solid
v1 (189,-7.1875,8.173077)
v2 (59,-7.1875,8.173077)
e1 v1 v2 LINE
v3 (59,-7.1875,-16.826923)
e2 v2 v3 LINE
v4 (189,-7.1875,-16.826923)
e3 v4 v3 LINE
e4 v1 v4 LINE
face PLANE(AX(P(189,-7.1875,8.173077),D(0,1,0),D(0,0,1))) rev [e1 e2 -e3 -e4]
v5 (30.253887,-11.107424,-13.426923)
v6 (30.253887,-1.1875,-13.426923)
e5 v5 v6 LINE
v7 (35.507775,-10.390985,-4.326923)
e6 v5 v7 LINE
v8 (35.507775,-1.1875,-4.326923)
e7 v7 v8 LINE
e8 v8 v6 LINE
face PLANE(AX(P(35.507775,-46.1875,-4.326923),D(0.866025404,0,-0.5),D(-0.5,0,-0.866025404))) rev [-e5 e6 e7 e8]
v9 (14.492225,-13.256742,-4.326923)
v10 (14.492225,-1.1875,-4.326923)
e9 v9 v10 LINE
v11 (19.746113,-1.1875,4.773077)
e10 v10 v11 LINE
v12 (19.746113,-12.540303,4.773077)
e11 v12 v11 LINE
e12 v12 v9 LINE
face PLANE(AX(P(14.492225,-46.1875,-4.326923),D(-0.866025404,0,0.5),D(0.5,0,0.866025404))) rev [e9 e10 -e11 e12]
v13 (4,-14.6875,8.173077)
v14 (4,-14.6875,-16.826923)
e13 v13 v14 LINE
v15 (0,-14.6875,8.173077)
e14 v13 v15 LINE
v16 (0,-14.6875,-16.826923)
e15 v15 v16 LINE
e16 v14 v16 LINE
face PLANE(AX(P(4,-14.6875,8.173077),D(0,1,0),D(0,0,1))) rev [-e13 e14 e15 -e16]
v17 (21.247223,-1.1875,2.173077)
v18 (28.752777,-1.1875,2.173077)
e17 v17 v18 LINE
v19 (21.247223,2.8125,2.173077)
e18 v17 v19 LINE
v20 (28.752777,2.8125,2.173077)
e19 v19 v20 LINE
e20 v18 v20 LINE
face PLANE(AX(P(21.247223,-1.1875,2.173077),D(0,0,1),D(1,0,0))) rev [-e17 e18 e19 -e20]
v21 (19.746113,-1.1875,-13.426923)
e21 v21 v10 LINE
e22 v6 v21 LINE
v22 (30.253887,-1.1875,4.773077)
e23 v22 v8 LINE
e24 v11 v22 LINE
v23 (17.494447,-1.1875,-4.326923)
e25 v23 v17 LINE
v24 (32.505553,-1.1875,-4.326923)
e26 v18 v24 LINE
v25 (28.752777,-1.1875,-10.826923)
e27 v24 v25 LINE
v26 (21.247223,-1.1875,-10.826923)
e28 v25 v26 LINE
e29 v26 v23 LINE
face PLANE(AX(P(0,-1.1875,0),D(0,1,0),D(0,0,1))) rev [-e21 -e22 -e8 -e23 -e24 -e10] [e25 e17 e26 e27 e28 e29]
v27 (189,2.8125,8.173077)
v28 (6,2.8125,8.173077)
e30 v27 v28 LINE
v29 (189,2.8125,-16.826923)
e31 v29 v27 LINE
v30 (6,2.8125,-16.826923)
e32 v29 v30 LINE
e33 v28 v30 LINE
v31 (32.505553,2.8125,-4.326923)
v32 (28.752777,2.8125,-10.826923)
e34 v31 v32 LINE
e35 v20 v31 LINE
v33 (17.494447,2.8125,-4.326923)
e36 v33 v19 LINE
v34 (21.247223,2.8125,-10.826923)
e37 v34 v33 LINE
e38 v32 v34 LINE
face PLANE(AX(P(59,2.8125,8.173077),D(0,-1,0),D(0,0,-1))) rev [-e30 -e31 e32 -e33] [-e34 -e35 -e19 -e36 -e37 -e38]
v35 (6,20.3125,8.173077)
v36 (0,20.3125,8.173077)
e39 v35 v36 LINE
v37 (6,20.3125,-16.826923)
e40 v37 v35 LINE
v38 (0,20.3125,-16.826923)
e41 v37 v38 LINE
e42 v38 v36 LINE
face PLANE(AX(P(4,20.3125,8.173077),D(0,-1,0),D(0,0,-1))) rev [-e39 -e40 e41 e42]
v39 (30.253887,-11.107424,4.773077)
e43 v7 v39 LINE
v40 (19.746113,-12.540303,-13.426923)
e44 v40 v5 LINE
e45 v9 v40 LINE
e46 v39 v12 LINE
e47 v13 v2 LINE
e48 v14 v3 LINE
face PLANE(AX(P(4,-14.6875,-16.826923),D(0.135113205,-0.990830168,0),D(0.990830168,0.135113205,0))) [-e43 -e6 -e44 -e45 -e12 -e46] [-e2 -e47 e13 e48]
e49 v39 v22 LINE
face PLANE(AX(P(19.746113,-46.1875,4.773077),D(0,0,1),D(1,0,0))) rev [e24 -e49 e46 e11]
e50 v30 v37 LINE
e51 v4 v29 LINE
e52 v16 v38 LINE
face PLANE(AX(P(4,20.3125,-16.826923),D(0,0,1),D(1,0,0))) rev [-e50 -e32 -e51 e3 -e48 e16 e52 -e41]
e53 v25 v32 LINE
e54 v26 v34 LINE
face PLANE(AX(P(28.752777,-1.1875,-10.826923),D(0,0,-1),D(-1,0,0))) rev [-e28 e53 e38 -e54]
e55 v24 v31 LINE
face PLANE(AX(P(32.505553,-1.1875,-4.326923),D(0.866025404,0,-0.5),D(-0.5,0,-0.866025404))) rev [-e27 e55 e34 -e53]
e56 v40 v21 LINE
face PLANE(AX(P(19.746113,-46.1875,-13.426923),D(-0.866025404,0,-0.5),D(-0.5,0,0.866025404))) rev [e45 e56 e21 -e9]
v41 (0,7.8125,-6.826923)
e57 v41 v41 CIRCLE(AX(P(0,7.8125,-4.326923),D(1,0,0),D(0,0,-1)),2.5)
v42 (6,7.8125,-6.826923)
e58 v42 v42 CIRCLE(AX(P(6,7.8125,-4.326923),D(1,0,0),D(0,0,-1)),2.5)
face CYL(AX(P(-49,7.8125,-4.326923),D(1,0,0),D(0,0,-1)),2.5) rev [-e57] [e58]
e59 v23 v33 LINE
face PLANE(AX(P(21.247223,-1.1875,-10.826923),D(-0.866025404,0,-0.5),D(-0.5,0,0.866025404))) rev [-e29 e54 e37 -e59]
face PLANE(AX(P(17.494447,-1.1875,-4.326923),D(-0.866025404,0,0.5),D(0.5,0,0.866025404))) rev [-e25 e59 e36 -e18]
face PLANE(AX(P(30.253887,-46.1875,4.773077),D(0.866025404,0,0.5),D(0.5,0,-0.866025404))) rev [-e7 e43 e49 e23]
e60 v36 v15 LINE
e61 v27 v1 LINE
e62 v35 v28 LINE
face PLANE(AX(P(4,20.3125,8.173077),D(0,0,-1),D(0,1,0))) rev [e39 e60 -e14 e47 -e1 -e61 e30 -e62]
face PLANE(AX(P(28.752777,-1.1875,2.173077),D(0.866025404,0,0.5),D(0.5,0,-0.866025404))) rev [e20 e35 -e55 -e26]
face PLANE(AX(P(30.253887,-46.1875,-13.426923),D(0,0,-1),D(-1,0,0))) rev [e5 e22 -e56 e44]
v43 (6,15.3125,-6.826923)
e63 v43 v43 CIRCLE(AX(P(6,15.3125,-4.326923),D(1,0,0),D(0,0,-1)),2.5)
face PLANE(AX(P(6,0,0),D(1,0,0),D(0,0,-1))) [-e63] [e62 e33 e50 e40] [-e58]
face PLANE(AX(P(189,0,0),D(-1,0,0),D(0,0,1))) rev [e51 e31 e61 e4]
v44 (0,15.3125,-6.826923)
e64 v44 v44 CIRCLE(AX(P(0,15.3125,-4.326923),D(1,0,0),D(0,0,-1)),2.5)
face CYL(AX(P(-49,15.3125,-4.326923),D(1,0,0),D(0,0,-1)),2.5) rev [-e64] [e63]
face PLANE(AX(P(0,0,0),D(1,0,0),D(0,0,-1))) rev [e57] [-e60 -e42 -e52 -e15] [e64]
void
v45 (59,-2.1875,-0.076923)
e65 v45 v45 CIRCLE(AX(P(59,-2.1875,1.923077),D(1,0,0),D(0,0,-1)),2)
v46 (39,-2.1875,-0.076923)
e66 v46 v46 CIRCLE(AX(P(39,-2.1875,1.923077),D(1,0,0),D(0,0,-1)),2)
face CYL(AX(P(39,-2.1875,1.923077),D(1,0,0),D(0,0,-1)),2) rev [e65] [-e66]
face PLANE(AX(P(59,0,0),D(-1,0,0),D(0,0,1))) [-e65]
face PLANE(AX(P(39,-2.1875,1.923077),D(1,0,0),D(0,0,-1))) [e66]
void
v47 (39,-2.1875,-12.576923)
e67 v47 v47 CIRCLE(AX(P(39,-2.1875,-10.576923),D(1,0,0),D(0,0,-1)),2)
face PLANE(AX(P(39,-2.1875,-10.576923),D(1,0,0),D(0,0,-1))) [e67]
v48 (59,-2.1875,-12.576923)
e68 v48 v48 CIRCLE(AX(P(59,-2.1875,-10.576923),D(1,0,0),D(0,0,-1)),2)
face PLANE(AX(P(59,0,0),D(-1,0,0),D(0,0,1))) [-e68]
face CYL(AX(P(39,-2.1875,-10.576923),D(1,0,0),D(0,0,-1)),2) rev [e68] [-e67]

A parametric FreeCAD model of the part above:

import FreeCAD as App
import Part
import Sketcher

V = App.Vector
Q = App.Units.Quantity


def add_polygon(sketch, points):
    """Adds a closed chain of lines whose ends are joined by coincident constraints."""
    first, n = sketch.GeometryCount, len(points)
    for a, b in zip(points, points[1:] + points[:1]):
        sketch.addGeometry(Part.LineSegment(App.Vector(*a, 0), App.Vector(*b, 0)), False)
    for i in range(n):
        sketch.addConstraint(Sketcher.Constraint("Coincident", first + i, 2, first + (i + 1) % n, 1))

doc = App.newDocument("Part")
body = doc.addObject("PartDesign::Body", "Body")

# Sketch on YZ plane
sketch1 = body.newObject("Sketcher::SketchObject", "Sketch")
sketch1.AttachmentSupport = (doc.getObject("YZ_Plane"), [""])
sketch1.MapMode = "FlatFace"
add_polygon(sketch1, [(20, 8), (-15, 8), (-15, -17), (20, -17)])  # lines 0-3
sketch1.addConstraint(Sketcher.Constraint("Horizontal", 0))
sketch1.addConstraint(Sketcher.Constraint("Vertical", 1))
sketch1.addConstraint(Sketcher.Constraint("Horizontal", 2))
sketch1.addConstraint(Sketcher.Constraint("Vertical", 3))
sketch1.addConstraint(Sketcher.Constraint("DistanceX", 0, 2, 0, 1, 35.0))
sketch1.addConstraint(Sketcher.Constraint("DistanceY", 1, 2, 1, 1, 25.0))
sketch1.addConstraint(Sketcher.Constraint("DistanceX", 0, 2, -1, 1, 14.6875))
sketch1.addConstraint(Sketcher.Constraint("DistanceY", -1, 1, 0, 2, 8.173077))
pad1 = body.newObject("PartDesign::Pad", "Pad")
pad1.Profile = sketch1
pad1.Length = 4

# Sketch on YZ plane
sketch2 = body.newObject("Sketcher::SketchObject", "Sketch001")
sketch2.AttachmentSupport = (doc.getObject("YZ_Plane"), [""])
sketch2.MapMode = "FlatFace"
sketch2.AttachmentOffset = App.Placement(V(0, 0, 4), App.Rotation())
add_polygon(sketch2, [(20, 8), (3, 8), (3, -17), (20, -17)])  # lines 0-3
sketch2.addConstraint(Sketcher.Constraint("Horizontal", 0))
sketch2.addConstraint(Sketcher.Constraint("Vertical", 1))
sketch2.addConstraint(Sketcher.Constraint("Horizontal", 2))
sketch2.addConstraint(Sketcher.Constraint("Vertical", 3))
sketch2.addConstraint(Sketcher.Constraint("DistanceY", 1, 2, 1, 1, 25.0))
sketch2.addConstraint(Sketcher.Constraint("DistanceX", 0, 2, 0, 1, 17.5))
sketch2.addConstraint(Sketcher.Constraint("DistanceX", -1, 1, 0, 2, 2.8125))
sketch2.addConstraint(Sketcher.Constraint("DistanceY", -1, 1, 0, 2, 8.173077))
pad2 = body.newObject("PartDesign::Pad", "Pad001")
pad2.Profile = sketch2
pad2.Length = 2

# Sketch on YZ plane
sketch3 = body.newObject("Sketcher::SketchObject", "Sketch002")
sketch3.AttachmentSupport = (doc.getObject("YZ_Plane"), [""])
sketch3.MapMode = "FlatFace"
sketch3.AttachmentOffset = App.Placement(V(0, 0, 4), App.Rotation())
add_polygon(sketch3, [(3, 8), (-7, 8), (-7, -17), (3, -17)])  # lines 0-3
sketch3.addConstraint(Sketcher.Constraint("Horizontal", 0))
sketch3.addConstraint(Sketcher.Constraint("Vertical", 1))
sketch3.addConstraint(Sketcher.Constraint("Horizontal", 2))
sketch3.addConstraint(Sketcher.Constraint("Vertical", 3))
sketch3.addConstraint(Sketcher.Constraint("DistanceX", 0, 2, 0, 1, 10.0))
sketch3.addConstraint(Sketcher.Constraint("DistanceY", 1, 2, 1, 1, 25.0))
sketch3.addConstraint(Sketcher.Constraint("DistanceX", 0, 2, -1, 1, 7.1875))
sketch3.addConstraint(Sketcher.Constraint("DistanceY", -1, 1, 0, 2, 8.173077))
pad3 = body.newObject("PartDesign::Pad", "Pad002")
pad3.Profile = sketch3
pad3.Length = 55

# Sketch on YZ plane
sketch4 = body.newObject("Sketcher::SketchObject", "Sketch003")
sketch4.AttachmentSupport = (doc.getObject("YZ_Plane"), [""])
sketch4.MapMode = "FlatFace"
sketch4.AttachmentOffset = App.Placement(V(0, 0, 6), App.Rotation())
sketch4.addGeometry(Part.Circle(V(15.3, -4.3, 0), V(0, 0, 1), 2.5), False)
sketch4.addGeometry(Part.Circle(V(7.8, -4.3, 0), V(0, 0, 1), 2.5), False)
sketch4.addConstraint(Sketcher.Constraint("Equal", 0, 1))
sketch4.addConstraint(Sketcher.Constraint("Horizontal", 0, 3, 1, 3))
sketch4.addConstraint(Sketcher.Constraint("Diameter", 0, 5.0))
sketch4.addConstraint(Sketcher.Constraint("DistanceX", 1, 3, 0, 3, 7.5))
sketch4.addConstraint(Sketcher.Constraint("DistanceX", -1, 1, 0, 3, 15.3125))
sketch4.addConstraint(Sketcher.Constraint("DistanceY", 0, 3, -1, 1, 4.326923))
pocket1 = body.newObject("PartDesign::Pocket", "Pocket")
pocket1.Profile = sketch4
pocket1.Length = 55

# Sketch on XY plane
sketch5 = body.newObject("Sketcher::SketchObject", "Sketch004")
sketch5.AttachmentSupport = (doc.getObject("XY_Plane"), [""])
sketch5.MapMode = "FlatFace"
sketch5.AttachmentOffset = App.Placement(V(0, 0, 8.173077), App.Rotation())
add_polygon(sketch5, [(4, -15), (59, -7), (4, -7)])  # lines 0-2
sketch5.addConstraint(Sketcher.Constraint("Horizontal", 1))
sketch5.addConstraint(Sketcher.Constraint("Vertical", 2))
sketch5.addConstraint(Sketcher.Constraint("DistanceX", 1, 2, 1, 1, 55.0))
sketch5.addConstraint(Sketcher.Constraint("DistanceY", 2, 2, 2, 1, 7.5))
sketch5.addConstraint(Sketcher.Constraint("DistanceX", -1, 1, 0, 2, 59.0))
sketch5.addConstraint(Sketcher.Constraint("DistanceY", 0, 2, -1, 1, 7.1875))
pad4 = body.newObject("PartDesign::Pad", "Pad003")
pad4.Profile = sketch5
pad4.Length = 25
pad4.Reversed = True

# Sketch on XZ plane
sketch6 = body.newObject("Sketcher::SketchObject", "Sketch005")
sketch6.AttachmentSupport = (doc.getObject("XZ_Plane"), [""])
sketch6.MapMode = "FlatFace"
sketch6.AttachmentOffset = App.Placement(V(0, 0, -2.8125), App.Rotation())
add_polygon(sketch6, [(33, -4), (29, -11), (21, -11), (17, -4), (21, 2), (29, 2)])  # lines 0-5
sketch6.addConstraint(Sketcher.Constraint("Horizontal", 1))
sketch6.addConstraint(Sketcher.Constraint("Horizontal", 4))
sketch6.addConstraint(Sketcher.Constraint("Parallel", 0, 3))
sketch6.addConstraint(Sketcher.Constraint("Parallel", 2, 5))
sketch6.addConstraint(Sketcher.Constraint("Horizontal", 2, 2, 5, 2))
sketch6.addConstraint(Sketcher.Constraint("Vertical", 1, 2, 3, 2))
sketch6.addConstraint(Sketcher.Constraint("Vertical", 0, 2, 4, 2))
sketch6.addConstraint(Sketcher.Constraint("Angle", 0, Q("-120 deg")))
sketch6.addConstraint(Sketcher.Constraint("DistanceY", 1, 2, 3, 2, 13.0))
sketch6.addConstraint(Sketcher.Constraint("DistanceX", 1, 2, 1, 1, 7.505553))
sketch6.addConstraint(Sketcher.Constraint("DistanceX", -1, 1, 0, 2, 28.752777))
sketch6.addConstraint(Sketcher.Constraint("DistanceY", 0, 2, -1, 1, 10.826923))
pocket2 = body.newObject("PartDesign::Pocket", "Pocket001")
pocket2.Profile = sketch6
pocket2.Length = 4
pocket2.Reversed = True

# Sketch on YZ plane
sketch7 = body.newObject("Sketcher::SketchObject", "Sketch006")
sketch7.AttachmentSupport = (doc.getObject("YZ_Plane"), [""])
sketch7.MapMode = "FlatFace"
sketch7.AttachmentOffset = App.Placement(V(0, 0, 59), App.Rotation())
sketch7.addGeometry(Part.Circle(V(-2.2, 1.9, 0), V(0, 0, 1), 2), False)
sketch7.addGeometry(Part.Circle(V(-2.2, -10.6, 0), V(0, 0, 1), 2), False)
sketch7.addConstraint(Sketcher.Constraint("Equal", 0, 1))
sketch7.addConstraint(Sketcher.Constraint("Vertical", 0, 3, 1, 3))
sketch7.addConstraint(Sketcher.Constraint("Diameter", 0, 4.0))
sketch7.addConstraint(Sketcher.Constraint("DistanceY", 1, 3, 0, 3, 12.5))
sketch7.addConstraint(Sketcher.Constraint("DistanceX", 0, 3, -1, 1, 2.1875))
sketch7.addConstraint(Sketcher.Constraint("DistanceY", -1, 1, 0, 3, 1.923077))
pocket3 = body.newObject("PartDesign::Pocket", "Pocket002")
pocket3.Profile = sketch7
pocket3.Length = 20

# Sketch on XZ plane
sketch8 = body.newObject("Sketcher::SketchObject", "Sketch007")
sketch8.AttachmentSupport = (doc.getObject("XZ_Plane"), [""])
sketch8.MapMode = "FlatFace"
sketch8.AttachmentOffset = App.Placement(V(0, 0, 1.1875), App.Rotation())
add_polygon(sketch8, [(30, -13), (20, -13), (14, -4), (20, 5), (30, 5), (36, -4)])  # lines 0-5
sketch8.addConstraint(Sketcher.Constraint("Horizontal", 0))
sketch8.addConstraint(Sketcher.Constraint("Horizontal", 3))
sketch8.addConstraint(Sketcher.Constraint("Parallel", 1, 4))
sketch8.addConstraint(Sketcher.Constraint("Parallel", 2, 5))
sketch8.addConstraint(Sketcher.Constraint("Horizontal", 1, 2, 4, 2))
sketch8.addConstraint(Sketcher.Constraint("Vertical", 0, 2, 2, 2))
sketch8.addConstraint(Sketcher.Constraint("Vertical", 3, 2, 5, 2))
sketch8.addConstraint(Sketcher.Constraint("Angle", 1, Q("120 deg")))
sketch8.addConstraint(Sketcher.Constraint("DistanceY", 0, 2, 1, 2, 9.1))
sketch8.addConstraint(Sketcher.Constraint("DistanceX", 0, 2, 0, 1, 10.507775))
sketch8.addConstraint(Sketcher.Constraint("DistanceX", -1, 1, 0, 2, 19.746113))
sketch8.addConstraint(Sketcher.Constraint("DistanceY", 0, 2, -1, 1, 13.426923))
pocket4 = body.newObject("PartDesign::Pocket", "Pocket003")
pocket4.Profile = sketch8
pocket4.Length = 45
pocket4.Reversed = True

# Sketch on YZ plane
sketch9 = body.newObject("Sketcher::SketchObject", "Sketch008")
sketch9.AttachmentSupport = (doc.getObject("YZ_Plane"), [""])
sketch9.MapMode = "FlatFace"
sketch9.AttachmentOffset = App.Placement(V(0, 0, 59), App.Rotation())
add_polygon(sketch9, [(3, 8), (-7, 8), (-7, -17), (3, -17)])  # lines 0-3
sketch9.addConstraint(Sketcher.Constraint("Horizontal", 0))
sketch9.addConstraint(Sketcher.Constraint("Vertical", 1))
sketch9.addConstraint(Sketcher.Constraint("Horizontal", 2))
sketch9.addConstraint(Sketcher.Constraint("Vertical", 3))
sketch9.addConstraint(Sketcher.Constraint("DistanceX", 0, 2, 0, 1, 10.0))
sketch9.addConstraint(Sketcher.Constraint("DistanceY", 1, 2, 1, 1, 25.0))
sketch9.addConstraint(Sketcher.Constraint("DistanceX", 0, 2, -1, 1, 7.1875))
sketch9.addConstraint(Sketcher.Constraint("DistanceY", -1, 1, 0, 2, 8.173077))
pad5 = body.newObject("PartDesign::Pad", "Pad004")
pad5.Profile = sketch9
pad5.Length = 130

doc.recompute()
